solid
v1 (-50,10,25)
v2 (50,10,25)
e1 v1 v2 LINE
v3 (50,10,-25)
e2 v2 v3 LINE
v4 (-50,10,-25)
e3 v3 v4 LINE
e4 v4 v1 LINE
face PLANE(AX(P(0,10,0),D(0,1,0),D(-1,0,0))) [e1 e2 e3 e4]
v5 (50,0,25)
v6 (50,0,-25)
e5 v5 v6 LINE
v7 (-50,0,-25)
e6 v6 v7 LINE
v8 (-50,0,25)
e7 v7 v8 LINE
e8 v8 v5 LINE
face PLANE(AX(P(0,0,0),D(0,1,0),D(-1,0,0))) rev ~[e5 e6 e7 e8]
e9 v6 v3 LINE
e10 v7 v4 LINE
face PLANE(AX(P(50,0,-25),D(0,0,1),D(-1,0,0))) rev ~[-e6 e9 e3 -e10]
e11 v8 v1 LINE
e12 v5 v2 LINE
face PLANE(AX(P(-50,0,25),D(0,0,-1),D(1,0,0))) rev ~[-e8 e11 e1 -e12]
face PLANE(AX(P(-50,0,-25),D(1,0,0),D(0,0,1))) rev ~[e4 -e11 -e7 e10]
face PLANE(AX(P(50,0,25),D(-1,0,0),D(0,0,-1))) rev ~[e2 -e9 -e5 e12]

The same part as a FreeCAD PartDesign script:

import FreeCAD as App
import Part
import Sketcher
Q = App.Units.Quantity


def add_polygon(sketch, points):
    """Adds a closed chain of lines whose ends are joined by coincident constraints."""
    first, n = sketch.GeometryCount, len(points)
    for a, b in zip(points, points[1:] + points[:1]):
        sketch.addGeometry(Part.LineSegment(App.Vector(*a, 0), App.Vector(*b, 0)), False)
    for i in range(n):
        sketch.addConstraint(Sketcher.Constraint("Coincident", first + i, 2, first + (i + 1) % n, 1))

doc = App.newDocument("Part")
body = doc.addObject("PartDesign::Body", "Body")

sketch1 = body.newObject("Sketcher::SketchObject", "Sketch")
sketch1.AttachmentSupport = (doc.getObject("XZ_Plane"), [""])
sketch1.MapMode = "FlatFace"
add_polygon(sketch1, [(-50, -25), (-50, 25), (50, 25), (50, -25)])
sketch1.addConstraint([
    Sketcher.Constraint("Vertical", 0),
    Sketcher.Constraint("Horizontal", 1),
    Sketcher.Constraint("Vertical", 2),
    Sketcher.Constraint("Horizontal", 3),
    Sketcher.Constraint("Symmetric", 0, 2, 2, 2, -1, 1),
    Sketcher.Constraint("DistanceX", 1, 1, 1, 2, Q("3.937 in")),
    Sketcher.Constraint("DistanceY", 0, 1, 0, 2, Q("1.9685 in")),
])
pad1 = body.newObject("PartDesign::Pad", "Pad")
pad1.Profile = sketch1
pad1.Length = Q("0.3937008 in")
pad1.Reversed = True

doc.recompute()
